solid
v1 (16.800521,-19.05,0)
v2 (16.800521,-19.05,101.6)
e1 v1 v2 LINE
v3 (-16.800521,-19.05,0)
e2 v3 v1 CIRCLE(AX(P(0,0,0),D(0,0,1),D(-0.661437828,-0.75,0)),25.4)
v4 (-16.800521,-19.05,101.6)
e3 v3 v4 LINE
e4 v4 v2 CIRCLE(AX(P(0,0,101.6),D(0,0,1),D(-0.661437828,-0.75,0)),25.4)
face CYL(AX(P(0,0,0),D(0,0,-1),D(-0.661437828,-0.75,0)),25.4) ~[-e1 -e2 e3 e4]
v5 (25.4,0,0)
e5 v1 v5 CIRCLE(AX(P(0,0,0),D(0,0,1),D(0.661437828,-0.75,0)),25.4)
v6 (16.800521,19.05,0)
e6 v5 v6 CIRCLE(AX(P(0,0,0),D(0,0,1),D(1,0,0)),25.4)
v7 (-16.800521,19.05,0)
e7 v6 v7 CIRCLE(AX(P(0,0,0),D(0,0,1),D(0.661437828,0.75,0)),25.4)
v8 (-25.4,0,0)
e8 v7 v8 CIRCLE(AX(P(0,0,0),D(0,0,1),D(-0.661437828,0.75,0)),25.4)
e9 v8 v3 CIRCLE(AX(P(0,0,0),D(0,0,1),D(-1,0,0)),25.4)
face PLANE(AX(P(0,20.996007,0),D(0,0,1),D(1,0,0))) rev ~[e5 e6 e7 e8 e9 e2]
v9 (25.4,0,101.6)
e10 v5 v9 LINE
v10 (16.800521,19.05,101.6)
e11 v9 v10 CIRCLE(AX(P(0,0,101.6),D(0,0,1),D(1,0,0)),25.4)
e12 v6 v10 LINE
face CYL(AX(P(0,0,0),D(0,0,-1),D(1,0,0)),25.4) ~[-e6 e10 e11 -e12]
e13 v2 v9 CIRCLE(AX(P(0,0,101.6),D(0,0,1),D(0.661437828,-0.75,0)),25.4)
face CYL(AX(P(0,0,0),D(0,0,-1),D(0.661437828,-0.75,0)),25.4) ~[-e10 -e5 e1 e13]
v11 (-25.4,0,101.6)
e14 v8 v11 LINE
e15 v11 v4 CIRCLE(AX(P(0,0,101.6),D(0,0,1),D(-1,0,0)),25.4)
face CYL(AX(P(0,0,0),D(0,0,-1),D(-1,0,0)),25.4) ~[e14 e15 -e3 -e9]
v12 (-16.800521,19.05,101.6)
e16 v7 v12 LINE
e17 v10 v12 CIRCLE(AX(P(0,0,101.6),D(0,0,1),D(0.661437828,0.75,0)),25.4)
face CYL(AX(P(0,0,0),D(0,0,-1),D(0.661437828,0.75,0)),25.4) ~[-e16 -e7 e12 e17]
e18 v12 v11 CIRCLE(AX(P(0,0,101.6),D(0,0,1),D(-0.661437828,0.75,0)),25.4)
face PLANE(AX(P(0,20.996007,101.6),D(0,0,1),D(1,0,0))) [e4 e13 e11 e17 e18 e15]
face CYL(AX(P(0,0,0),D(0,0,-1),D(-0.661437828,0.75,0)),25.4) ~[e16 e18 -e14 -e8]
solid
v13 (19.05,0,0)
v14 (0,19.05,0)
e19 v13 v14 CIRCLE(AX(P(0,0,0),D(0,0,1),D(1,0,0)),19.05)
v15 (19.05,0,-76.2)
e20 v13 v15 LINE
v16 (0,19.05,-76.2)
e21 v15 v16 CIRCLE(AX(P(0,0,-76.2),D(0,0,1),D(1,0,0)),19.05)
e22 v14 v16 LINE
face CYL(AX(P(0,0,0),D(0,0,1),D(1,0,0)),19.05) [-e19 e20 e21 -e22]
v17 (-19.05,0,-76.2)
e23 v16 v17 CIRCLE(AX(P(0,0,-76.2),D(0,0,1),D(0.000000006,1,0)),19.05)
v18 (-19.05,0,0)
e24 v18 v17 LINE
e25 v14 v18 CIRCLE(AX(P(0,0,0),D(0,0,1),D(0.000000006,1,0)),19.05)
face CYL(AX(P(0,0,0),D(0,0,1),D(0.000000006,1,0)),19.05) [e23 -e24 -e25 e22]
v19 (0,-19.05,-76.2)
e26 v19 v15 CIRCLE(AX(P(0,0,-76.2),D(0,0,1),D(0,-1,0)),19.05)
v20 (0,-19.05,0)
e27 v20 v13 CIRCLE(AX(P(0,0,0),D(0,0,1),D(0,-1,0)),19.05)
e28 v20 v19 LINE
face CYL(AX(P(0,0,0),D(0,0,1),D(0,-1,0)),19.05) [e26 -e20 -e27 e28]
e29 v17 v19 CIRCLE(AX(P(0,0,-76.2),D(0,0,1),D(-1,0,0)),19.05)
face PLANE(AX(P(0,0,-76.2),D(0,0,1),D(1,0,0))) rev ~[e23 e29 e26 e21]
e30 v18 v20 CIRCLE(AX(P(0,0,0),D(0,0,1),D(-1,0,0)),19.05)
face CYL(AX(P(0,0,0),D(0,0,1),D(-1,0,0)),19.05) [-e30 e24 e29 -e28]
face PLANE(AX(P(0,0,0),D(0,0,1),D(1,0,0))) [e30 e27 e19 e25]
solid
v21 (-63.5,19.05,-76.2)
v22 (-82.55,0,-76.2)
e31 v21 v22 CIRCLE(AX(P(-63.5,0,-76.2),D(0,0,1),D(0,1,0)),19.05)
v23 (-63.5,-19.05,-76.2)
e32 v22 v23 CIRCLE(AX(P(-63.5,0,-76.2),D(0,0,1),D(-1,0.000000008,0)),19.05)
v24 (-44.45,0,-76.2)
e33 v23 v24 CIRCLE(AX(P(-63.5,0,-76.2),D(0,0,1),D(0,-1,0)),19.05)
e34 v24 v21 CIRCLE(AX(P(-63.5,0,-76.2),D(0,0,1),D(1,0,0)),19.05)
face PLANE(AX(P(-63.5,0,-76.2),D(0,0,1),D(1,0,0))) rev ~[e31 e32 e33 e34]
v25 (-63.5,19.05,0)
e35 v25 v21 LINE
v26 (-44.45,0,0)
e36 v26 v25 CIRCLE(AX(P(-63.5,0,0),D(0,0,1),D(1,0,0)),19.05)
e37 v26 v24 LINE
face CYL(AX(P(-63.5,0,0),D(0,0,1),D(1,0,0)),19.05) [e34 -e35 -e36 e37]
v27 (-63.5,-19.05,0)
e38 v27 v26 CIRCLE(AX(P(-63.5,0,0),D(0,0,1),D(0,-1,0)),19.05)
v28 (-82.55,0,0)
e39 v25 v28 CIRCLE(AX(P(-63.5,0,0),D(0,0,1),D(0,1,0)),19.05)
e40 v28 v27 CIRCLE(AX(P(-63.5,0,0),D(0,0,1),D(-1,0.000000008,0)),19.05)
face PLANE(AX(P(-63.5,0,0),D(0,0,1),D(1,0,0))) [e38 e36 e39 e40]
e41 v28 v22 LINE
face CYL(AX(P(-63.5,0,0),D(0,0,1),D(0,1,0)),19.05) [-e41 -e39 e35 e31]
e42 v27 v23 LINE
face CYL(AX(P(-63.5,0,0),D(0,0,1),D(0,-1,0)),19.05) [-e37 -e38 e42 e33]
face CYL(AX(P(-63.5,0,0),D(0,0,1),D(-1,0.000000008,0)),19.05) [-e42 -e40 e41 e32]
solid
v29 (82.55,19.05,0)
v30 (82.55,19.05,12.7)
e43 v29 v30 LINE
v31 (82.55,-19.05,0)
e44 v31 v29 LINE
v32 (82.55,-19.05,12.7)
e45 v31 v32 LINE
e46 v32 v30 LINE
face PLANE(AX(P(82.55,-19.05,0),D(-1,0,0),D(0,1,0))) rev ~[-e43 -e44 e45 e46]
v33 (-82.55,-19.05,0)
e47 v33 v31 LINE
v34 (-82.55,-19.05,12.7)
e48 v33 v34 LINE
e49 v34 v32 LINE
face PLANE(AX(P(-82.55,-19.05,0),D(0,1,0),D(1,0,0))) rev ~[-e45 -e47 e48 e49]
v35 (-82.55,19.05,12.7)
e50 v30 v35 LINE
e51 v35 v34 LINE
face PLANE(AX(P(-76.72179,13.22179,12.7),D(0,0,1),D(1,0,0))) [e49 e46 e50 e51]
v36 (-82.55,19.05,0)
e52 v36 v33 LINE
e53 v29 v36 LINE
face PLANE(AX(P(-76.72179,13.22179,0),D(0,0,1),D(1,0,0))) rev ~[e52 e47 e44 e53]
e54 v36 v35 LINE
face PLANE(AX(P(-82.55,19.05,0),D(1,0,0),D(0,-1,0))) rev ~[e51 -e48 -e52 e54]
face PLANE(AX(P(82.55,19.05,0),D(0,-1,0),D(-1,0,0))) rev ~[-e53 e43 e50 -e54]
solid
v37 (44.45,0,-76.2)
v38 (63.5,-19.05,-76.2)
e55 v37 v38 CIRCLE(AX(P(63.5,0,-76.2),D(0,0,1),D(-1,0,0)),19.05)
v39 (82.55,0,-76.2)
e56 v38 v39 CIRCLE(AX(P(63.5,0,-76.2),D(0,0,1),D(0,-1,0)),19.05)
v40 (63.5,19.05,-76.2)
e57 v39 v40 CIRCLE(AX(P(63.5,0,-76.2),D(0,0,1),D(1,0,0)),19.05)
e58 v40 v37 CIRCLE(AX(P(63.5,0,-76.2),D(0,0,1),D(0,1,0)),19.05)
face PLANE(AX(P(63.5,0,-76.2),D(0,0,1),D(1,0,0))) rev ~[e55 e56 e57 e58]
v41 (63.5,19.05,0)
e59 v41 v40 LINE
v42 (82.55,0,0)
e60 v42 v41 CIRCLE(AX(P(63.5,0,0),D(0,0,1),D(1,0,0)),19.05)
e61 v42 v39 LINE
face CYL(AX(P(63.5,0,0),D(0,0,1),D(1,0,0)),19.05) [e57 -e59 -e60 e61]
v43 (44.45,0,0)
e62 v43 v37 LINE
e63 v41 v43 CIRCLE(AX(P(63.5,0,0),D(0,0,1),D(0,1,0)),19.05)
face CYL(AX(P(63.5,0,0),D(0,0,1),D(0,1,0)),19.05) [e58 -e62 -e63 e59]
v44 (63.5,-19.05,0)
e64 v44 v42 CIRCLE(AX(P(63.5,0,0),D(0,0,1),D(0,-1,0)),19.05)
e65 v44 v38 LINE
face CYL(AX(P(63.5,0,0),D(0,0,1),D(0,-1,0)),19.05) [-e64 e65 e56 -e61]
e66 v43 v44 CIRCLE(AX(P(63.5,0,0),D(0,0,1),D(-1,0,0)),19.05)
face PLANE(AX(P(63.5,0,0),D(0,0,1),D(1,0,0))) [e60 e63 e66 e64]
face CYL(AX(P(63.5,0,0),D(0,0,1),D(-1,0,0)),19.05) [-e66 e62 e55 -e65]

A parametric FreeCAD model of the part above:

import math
import FreeCAD as App
import Part
import Sketcher

V = App.Vector
Q = App.Units.Quantity


def add_polygon(sketch, points):
    """Adds a closed chain of lines whose ends are joined by coincident constraints."""
    first, n = sketch.GeometryCount, len(points)
    for a, b in zip(points, points[1:] + points[:1]):
        sketch.addGeometry(Part.LineSegment(App.Vector(*a, 0), App.Vector(*b, 0)), False)
    for i in range(n):
        sketch.addConstraint(Sketcher.Constraint("Coincident", first + i, 2, first + (i + 1) % n, 1))

doc = App.newDocument("Part")
body = doc.addObject("PartDesign::Body", "Body")

sketch1 = body.newObject("Sketcher::SketchObject", "Sketch")
sketch1.AttachmentSupport = (doc.getObject("XY_Plane"), [""])
sketch1.MapMode = "FlatFace"
add_polygon(sketch1, [(-82.55, 19.05), (-82.55, -19.05), (82.55, -19.05), (82.55, 19.05)])
sketch1.addConstraint(Sketcher.Constraint("Vertical", 0))
sketch1.addConstraint(Sketcher.Constraint("Horizontal", 1))
sketch1.addConstraint(Sketcher.Constraint("Vertical", 2))
sketch1.addConstraint(Sketcher.Constraint("Horizontal", 3))
sketch1.addConstraint(Sketcher.Constraint("Symmetric", 0, 2, 2, 2, -1, 1))
sketch1.addConstraint(Sketcher.Constraint("DistanceX", 1, 1, 1, 2, Q("6.5 in")))
sketch1.addConstraint(Sketcher.Constraint("DistanceY", 0, 2, 0, 1, Q("1.5 in")))
pad1 = body.newObject("PartDesign::Pad", "Pad")
pad1.Profile = sketch1
pad1.Length = Q("0.5 in")
body2 = doc.addObject("PartDesign::Body", "Body001")

sketch2 = body2.newObject("Sketcher::SketchObject", "Sketch001")
sketch2.AttachmentSupport = (doc.getObject("XY_Plane001"), [""])
sketch2.MapMode = "FlatFace"
sketch2.addGeometry(Part.ArcOfCircle(Part.Circle(V(63.5, 0, 0), V(0, 0, 1), 19.05), math.radians(0), math.radians(90)), False)
sketch2.addGeometry(Part.ArcOfCircle(Part.Circle(V(63.5, 0, 0), V(0, 0, 1), 19.05), math.radians(90), math.radians(180)), False)
sketch2.addGeometry(Part.ArcOfCircle(Part.Circle(V(63.5, 0, 0), V(0, 0, 1), 19.05), math.radians(180), math.radians(270)), False)
sketch2.addGeometry(Part.ArcOfCircle(Part.Circle(V(63.5, 0, 0), V(0, 0, 1), 19.05), math.radians(-90), math.radians(0)), False)
sketch2.addConstraint(Sketcher.Constraint("Tangent", 0, 2, 1, 1))
sketch2.addConstraint(Sketcher.Constraint("Tangent", 1, 2, 2, 1))
sketch2.addConstraint(Sketcher.Constraint("Tangent", 2, 2, 3, 1))
sketch2.addConstraint(Sketcher.Constraint("Tangent", 3, 2, 0, 1))
sketch2.addConstraint(Sketcher.Constraint("Equal", 0, 1))
sketch2.addConstraint(Sketcher.Constraint("Symmetric", 0, 2, 2, 2, -1))
sketch2.addConstraint(Sketcher.Constraint("PointOnObject", 1, 2, -1))
sketch2.addConstraint(Sketcher.Constraint("PointOnObject", 3, 2, -1))
sketch2.addConstraint(Sketcher.Constraint("Vertical", 3, 3, 0, 2))
sketch2.addConstraint(Sketcher.Constraint("Radius", 0, Q("0.75 in")))
sketch2.addConstraint(Sketcher.Constraint("DistanceX", -1, 1, 0, 3, Q("2.5 in")))
pad2 = body2.newObject("PartDesign::Pad", "Pad001")
pad2.Profile = sketch2
pad2.Length = Q("3 in")
pad2.Reversed = True
body3 = doc.addObject("PartDesign::Body", "Body002")

sketch3 = body3.newObject("Sketcher::SketchObject", "Sketch002")
sketch3.AttachmentSupport = (doc.getObject("XY_Plane002"), [""])
sketch3.MapMode = "FlatFace"
sketch3.addGeometry(Part.ArcOfCircle(Part.Circle(V(0, 0, 0), V(0, 0, 1), 19.05), math.radians(0), math.radians(90)), False)
sketch3.addGeometry(Part.ArcOfCircle(Part.Circle(V(0, 0, 0), V(0, 0, 1), 19.05), math.radians(90), math.radians(180)), False)
sketch3.addGeometry(Part.ArcOfCircle(Part.Circle(V(0, 0, 0), V(0, 0, 1), 19.05), math.radians(180), math.radians(270)), False)
sketch3.addGeometry(Part.ArcOfCircle(Part.Circle(V(0, 0, 0), V(0, 0, 1), 19.05), math.radians(-90), math.radians(0)), False)
sketch3.addConstraint(Sketcher.Constraint("Tangent", 0, 2, 1, 1))
sketch3.addConstraint(Sketcher.Constraint("Tangent", 1, 2, 2, 1))
sketch3.addConstraint(Sketcher.Constraint("Tangent", 2, 2, 3, 1))
sketch3.addConstraint(Sketcher.Constraint("Tangent", 3, 2, 0, 1))
sketch3.addConstraint(Sketcher.Constraint("Coincident", 0, 3, -1, 1))
sketch3.addConstraint(Sketcher.Constraint("Equal", 0, 1))
sketch3.addConstraint(Sketcher.Constraint("PointOnObject", 0, 2, -2))
sketch3.addConstraint(Sketcher.Constraint("PointOnObject", 1, 2, -1))
sketch3.addConstraint(Sketcher.Constraint("PointOnObject", 2, 2, -2))
sketch3.addConstraint(Sketcher.Constraint("PointOnObject", 3, 2, -1))
sketch3.addConstraint(Sketcher.Constraint("Radius", 0, Q("0.75 in")))
pad3 = body3.newObject("PartDesign::Pad", "Pad002")
pad3.Profile = sketch3
pad3.Length = Q("3 in")
pad3.Reversed = True
body4 = doc.addObject("PartDesign::Body", "Body003")

sketch4 = body4.newObject("Sketcher::SketchObject", "Sketch003")
sketch4.AttachmentSupport = (doc.getObject("XY_Plane003"), [""])
sketch4.MapMode = "FlatFace"
sketch4.addGeometry(Part.ArcOfCircle(Part.Circle(V(-63.5, 0, 0), V(0, 0, 1), 19.05), math.radians(0), math.radians(90)), False)
sketch4.addGeometry(Part.ArcOfCircle(Part.Circle(V(-63.5, 0, 0), V(0, 0, 1), 19.05), math.radians(90), math.radians(180)), False)
sketch4.addGeometry(Part.ArcOfCircle(Part.Circle(V(-63.5, 0, 0), V(0, 0, 1), 19.05), math.radians(180), math.radians(270)), False)
sketch4.addGeometry(Part.ArcOfCircle(Part.Circle(V(-63.5, 0, 0), V(0, 0, 1), 19.05), math.radians(-90), math.radians(0)), False)
sketch4.addConstraint(Sketcher.Constraint("Tangent", 0, 2, 1, 1))
sketch4.addConstraint(Sketcher.Constraint("Tangent", 1, 2, 2, 1))
sketch4.addConstraint(Sketcher.Constraint("Tangent", 2, 2, 3, 1))
sketch4.addConstraint(Sketcher.Constraint("Tangent", 3, 2, 0, 1))
sketch4.addConstraint(Sketcher.Constraint("Equal", 0, 1))
sketch4.addConstraint(Sketcher.Constraint("Symmetric", 0, 2, 2, 2, -1))
sketch4.addConstraint(Sketcher.Constraint("PointOnObject", 1, 2, -1))
sketch4.addConstraint(Sketcher.Constraint("PointOnObject", 3, 2, -1))
sketch4.addConstraint(Sketcher.Constraint("Vertical", 3, 3, 0, 2))
sketch4.addConstraint(Sketcher.Constraint("Radius", 0, Q("0.75 in")))
sketch4.addConstraint(Sketcher.Constraint("DistanceX", 0, 3, -1, 1, Q("2.5 in")))
pad4 = body4.newObject("PartDesign::Pad", "Pad003")
pad4.Profile = sketch4
pad4.Length = Q("3 in")
pad4.Reversed = True
body5 = doc.addObject("PartDesign::Body", "Body004")

sketch5 = body5.newObject("Sketcher::SketchObject", "Sketch004")
sketch5.AttachmentSupport = (doc.getObject("XY_Plane004"), [""])
sketch5.MapMode = "FlatFace"
sketch5.addGeometry(Part.ArcOfCircle(Part.Circle(V(0, 0, 0), V(0, 0, 1), 25.4), math.radians(48.590378), math.radians(131.409622)), False)
sketch5.addGeometry(Part.ArcOfCircle(Part.Circle(V(0, 0, 0), V(0, 0, 1), 25.4), math.radians(131.409622), math.radians(180)), False)
sketch5.addGeometry(Part.ArcOfCircle(Part.Circle(V(0, 0, 0), V(0, 0, 1), 25.4), math.radians(180), math.radians(228.590378)), False)
sketch5.addGeometry(Part.ArcOfCircle(Part.Circle(V(0, 0, 0), V(0, 0, 1), 25.4), math.radians(-131.409622), math.radians(-48.590378)), False)
sketch5.addGeometry(Part.ArcOfCircle(Part.Circle(V(0, 0, 0), V(0, 0, 1), 25.4), math.radians(-48.590378), math.radians(0)), False)
sketch5.addGeometry(Part.ArcOfCircle(Part.Circle(V(0, 0, 0), V(0, 0, 1), 25.4), math.radians(0), math.radians(48.590378)), False)
sketch5.addConstraint(Sketcher.Constraint("Tangent", 0, 2, 1, 1))
sketch5.addConstraint(Sketcher.Constraint("Tangent", 1, 2, 2, 1))
sketch5.addConstraint(Sketcher.Constraint("Tangent", 2, 2, 3, 1))
sketch5.addConstraint(Sketcher.Constraint("Tangent", 3, 2, 4, 1))
sketch5.addConstraint(Sketcher.Constraint("Tangent", 4, 2, 5, 1))
sketch5.addConstraint(Sketcher.Constraint("Tangent", 5, 2, 0, 1))
sketch5.addConstraint(Sketcher.Constraint("Coincident", 0, 3, -1, 1))
sketch5.addConstraint(Sketcher.Constraint("Coincident", 2, 3, -1, 1))
sketch5.addConstraint(Sketcher.Constraint("Equal", 2, 3))
sketch5.addConstraint(Sketcher.Constraint("PointOnObject", 1, 2, -1))
sketch5.addConstraint(Sketcher.Constraint("PointOnObject", 4, 2, -1))
sketch5.addConstraint(Sketcher.Constraint("Horizontal", 2, 2, 3, 2))
sketch5.addConstraint(Sketcher.Constraint("Horizontal", 0, 2, 5, 2))
sketch5.addConstraint(Sketcher.Constraint("Vertical", 0, 2, 2, 2))
sketch5.addConstraint(Sketcher.Constraint("Radius", 0, Q("1 in")))
sketch5.addConstraint(Sketcher.Constraint("DistanceY", -1, 1, 0, 2, Q("0.75 in")))
pad5 = body5.newObject("PartDesign::Pad", "Pad004")
pad5.Profile = sketch5
pad5.Length = Q("4 in")

doc.recompute()
